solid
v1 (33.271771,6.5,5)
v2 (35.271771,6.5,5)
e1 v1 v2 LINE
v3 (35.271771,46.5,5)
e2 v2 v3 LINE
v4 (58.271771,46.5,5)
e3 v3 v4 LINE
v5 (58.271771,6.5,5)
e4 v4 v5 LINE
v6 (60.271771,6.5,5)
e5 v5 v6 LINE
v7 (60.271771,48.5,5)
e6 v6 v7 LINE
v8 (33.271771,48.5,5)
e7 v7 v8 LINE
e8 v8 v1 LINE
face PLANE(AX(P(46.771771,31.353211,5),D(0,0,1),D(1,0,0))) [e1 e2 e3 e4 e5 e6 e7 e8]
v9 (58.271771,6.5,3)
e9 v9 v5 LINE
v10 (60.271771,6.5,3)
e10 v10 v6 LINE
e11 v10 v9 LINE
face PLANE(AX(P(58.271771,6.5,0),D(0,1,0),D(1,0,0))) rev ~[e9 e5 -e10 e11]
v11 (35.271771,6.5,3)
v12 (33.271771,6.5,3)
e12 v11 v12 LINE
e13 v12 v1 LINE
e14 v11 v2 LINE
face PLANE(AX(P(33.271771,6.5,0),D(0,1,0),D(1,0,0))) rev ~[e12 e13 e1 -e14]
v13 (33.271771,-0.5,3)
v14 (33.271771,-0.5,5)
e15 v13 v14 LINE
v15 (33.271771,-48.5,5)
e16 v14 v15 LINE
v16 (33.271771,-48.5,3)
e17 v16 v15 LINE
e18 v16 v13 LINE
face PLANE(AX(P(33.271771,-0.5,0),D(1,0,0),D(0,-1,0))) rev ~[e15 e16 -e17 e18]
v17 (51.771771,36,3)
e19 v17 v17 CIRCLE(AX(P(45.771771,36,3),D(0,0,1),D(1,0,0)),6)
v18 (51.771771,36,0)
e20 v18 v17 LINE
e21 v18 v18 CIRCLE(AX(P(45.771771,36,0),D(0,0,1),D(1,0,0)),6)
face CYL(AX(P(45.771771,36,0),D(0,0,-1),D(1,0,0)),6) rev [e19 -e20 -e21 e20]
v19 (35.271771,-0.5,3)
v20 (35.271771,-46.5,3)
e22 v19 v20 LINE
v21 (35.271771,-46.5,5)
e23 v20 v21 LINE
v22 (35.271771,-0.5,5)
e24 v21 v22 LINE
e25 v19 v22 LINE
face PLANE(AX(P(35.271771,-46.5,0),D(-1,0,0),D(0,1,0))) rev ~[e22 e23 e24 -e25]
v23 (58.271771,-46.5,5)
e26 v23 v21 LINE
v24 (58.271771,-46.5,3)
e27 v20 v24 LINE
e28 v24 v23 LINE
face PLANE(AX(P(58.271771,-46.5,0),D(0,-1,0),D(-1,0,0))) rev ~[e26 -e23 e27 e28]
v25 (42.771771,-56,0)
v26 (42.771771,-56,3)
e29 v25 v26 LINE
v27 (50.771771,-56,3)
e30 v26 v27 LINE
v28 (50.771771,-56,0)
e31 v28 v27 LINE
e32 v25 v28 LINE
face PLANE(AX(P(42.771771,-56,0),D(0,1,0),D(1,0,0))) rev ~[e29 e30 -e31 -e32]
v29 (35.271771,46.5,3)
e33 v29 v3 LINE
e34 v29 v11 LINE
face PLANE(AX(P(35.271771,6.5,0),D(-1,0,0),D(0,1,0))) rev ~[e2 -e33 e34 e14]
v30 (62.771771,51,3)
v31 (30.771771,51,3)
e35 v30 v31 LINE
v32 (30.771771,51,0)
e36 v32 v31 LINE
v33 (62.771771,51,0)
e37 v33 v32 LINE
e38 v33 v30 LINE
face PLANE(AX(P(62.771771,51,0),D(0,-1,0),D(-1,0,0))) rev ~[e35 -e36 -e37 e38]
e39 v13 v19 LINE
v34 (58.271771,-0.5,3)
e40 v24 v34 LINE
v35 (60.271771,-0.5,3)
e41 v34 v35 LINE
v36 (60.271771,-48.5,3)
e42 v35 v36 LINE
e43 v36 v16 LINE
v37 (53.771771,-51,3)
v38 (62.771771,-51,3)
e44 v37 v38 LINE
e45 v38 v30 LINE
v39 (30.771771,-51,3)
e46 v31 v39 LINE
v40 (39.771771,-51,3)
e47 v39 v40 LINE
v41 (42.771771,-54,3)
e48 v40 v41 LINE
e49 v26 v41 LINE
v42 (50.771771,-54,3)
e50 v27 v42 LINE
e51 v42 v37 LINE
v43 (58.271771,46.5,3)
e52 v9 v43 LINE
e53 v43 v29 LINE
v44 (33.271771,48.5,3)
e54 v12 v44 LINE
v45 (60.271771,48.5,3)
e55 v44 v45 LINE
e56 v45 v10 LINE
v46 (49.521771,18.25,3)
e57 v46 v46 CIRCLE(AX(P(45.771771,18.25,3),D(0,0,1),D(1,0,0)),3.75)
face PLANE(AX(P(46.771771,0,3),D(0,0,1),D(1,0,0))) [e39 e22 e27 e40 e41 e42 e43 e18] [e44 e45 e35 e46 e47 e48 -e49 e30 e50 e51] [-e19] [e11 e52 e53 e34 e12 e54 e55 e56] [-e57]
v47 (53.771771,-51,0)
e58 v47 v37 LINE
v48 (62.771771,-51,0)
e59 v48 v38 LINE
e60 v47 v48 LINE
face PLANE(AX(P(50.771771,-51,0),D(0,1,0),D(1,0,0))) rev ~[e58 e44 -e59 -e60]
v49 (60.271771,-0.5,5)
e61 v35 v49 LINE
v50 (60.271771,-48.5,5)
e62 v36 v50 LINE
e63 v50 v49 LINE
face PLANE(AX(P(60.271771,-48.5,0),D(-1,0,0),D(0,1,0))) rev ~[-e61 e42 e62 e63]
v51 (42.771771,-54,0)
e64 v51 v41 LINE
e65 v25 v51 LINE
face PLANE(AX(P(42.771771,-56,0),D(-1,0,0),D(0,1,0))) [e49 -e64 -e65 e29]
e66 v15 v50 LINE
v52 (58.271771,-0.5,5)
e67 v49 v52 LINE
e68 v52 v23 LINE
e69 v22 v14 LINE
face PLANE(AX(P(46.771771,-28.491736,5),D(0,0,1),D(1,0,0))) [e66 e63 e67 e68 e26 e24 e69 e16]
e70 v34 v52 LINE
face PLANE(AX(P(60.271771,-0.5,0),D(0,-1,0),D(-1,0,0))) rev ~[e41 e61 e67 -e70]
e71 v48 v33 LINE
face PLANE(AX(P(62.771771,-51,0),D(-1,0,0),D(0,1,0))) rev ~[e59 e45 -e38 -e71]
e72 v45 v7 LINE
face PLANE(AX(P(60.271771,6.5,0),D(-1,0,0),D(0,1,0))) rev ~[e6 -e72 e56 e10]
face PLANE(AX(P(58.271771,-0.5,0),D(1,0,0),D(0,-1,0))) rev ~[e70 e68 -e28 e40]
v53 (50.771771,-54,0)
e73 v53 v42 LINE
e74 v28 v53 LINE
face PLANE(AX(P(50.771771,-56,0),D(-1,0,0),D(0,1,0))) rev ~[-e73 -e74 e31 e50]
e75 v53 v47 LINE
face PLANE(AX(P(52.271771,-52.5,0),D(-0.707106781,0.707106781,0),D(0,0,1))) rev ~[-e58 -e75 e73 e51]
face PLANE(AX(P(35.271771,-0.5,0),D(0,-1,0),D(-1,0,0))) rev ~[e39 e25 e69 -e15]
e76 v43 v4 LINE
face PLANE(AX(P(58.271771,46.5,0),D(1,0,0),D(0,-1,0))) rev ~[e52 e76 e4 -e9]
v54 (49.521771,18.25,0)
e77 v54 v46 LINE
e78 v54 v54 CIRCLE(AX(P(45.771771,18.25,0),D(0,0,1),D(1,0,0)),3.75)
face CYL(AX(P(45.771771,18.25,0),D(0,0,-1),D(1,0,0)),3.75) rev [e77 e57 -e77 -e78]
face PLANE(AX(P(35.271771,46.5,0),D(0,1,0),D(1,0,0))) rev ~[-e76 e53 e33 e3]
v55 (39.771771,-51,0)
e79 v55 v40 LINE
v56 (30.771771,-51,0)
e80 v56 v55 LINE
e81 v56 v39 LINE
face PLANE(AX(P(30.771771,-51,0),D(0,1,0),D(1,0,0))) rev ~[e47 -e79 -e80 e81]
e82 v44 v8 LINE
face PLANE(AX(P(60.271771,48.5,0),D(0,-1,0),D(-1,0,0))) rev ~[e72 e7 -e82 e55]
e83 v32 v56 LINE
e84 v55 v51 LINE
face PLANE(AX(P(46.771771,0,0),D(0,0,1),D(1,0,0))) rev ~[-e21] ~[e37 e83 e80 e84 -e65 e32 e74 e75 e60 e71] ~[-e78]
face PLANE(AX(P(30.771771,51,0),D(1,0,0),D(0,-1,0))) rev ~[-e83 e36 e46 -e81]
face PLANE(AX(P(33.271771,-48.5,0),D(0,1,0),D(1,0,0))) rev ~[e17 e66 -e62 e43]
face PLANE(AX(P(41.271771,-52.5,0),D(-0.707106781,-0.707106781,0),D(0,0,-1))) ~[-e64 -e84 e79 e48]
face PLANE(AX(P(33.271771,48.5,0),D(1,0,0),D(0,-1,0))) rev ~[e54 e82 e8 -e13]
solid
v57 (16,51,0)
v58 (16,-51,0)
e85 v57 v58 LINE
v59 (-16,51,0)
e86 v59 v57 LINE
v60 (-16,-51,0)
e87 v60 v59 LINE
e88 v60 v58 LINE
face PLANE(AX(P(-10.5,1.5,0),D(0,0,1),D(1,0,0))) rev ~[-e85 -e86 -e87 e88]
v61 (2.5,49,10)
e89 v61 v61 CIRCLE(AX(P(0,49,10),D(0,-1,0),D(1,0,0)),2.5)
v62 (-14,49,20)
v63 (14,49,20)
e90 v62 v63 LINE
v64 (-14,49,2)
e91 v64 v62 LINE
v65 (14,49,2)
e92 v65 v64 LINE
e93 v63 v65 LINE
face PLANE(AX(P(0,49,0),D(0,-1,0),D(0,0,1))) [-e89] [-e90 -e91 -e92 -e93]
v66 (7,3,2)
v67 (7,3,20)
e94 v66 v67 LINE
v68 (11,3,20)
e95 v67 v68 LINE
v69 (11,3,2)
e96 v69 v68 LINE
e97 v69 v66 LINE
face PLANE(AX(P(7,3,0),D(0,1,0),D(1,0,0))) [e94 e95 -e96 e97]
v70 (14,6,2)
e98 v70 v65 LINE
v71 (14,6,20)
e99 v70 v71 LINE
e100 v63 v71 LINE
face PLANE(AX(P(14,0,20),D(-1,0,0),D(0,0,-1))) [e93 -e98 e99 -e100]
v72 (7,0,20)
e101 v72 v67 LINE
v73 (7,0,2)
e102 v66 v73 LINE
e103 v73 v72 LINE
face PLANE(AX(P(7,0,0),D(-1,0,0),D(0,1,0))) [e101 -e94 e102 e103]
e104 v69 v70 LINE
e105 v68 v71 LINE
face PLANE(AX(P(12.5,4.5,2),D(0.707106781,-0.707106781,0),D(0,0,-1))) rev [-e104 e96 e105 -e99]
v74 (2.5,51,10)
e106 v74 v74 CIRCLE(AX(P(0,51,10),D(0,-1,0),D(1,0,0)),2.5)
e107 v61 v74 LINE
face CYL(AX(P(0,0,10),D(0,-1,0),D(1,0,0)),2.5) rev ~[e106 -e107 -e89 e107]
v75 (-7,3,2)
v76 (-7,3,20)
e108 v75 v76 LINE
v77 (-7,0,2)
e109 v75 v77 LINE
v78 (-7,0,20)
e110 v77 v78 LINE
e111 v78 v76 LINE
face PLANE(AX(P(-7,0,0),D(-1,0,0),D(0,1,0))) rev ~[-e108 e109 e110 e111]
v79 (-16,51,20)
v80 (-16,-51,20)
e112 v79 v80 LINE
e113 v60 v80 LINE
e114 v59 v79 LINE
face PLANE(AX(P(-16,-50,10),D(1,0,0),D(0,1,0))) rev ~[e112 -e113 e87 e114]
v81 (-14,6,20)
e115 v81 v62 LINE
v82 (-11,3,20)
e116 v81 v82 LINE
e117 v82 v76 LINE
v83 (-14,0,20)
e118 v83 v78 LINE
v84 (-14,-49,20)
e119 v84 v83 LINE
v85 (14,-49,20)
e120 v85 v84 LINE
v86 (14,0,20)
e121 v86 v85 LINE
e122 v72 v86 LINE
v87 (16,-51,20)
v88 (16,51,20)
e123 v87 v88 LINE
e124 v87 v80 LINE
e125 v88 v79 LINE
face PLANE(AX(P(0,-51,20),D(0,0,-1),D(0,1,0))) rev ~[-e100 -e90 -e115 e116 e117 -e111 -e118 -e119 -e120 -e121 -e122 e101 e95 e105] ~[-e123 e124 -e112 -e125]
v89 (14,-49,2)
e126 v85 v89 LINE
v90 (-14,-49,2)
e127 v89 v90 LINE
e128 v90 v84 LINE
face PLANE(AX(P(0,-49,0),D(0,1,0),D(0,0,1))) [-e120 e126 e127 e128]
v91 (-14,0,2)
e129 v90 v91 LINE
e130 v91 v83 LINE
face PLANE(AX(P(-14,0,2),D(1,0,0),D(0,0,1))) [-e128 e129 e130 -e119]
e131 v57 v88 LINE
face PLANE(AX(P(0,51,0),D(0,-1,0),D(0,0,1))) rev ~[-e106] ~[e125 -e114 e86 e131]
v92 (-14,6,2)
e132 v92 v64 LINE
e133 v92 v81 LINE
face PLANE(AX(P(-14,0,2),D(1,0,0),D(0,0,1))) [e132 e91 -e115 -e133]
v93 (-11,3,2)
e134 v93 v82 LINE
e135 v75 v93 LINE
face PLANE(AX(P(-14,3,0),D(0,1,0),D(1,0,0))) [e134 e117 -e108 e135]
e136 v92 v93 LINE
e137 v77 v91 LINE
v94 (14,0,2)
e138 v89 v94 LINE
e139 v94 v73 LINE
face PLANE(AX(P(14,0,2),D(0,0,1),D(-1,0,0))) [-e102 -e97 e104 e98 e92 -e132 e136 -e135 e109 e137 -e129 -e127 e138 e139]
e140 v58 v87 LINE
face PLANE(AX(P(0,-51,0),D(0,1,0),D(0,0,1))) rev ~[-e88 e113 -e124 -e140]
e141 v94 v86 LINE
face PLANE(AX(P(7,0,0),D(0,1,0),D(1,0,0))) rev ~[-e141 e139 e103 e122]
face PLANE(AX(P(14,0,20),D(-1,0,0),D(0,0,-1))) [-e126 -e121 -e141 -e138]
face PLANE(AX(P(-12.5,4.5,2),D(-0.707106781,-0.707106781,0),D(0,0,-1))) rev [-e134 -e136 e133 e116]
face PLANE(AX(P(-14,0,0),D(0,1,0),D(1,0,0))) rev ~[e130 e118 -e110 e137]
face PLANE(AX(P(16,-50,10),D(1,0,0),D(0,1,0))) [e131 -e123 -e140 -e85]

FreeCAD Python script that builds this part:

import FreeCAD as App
import Part
import Sketcher
from FreeCAD import Vector


def edges_at(feature, points):
    """Names of the edges that pass closest to the given points."""
    edges = feature.Shape.Edges
    near = lambda p: min(range(len(edges)), key=lambda i: edges[i].distToShape(Part.Vertex(*p))[0])
    return sorted({f"Edge{near(p) + 1}" for p in points})


def add_polygon(sketch, points):
    """Adds a closed chain of lines whose ends are joined by coincident constraints."""
    first, n = sketch.GeometryCount, len(points)
    for a, b in zip(points, points[1:] + points[:1]):
        sketch.addGeometry(Part.LineSegment(App.Vector(*a, 0), App.Vector(*b, 0)), False)
    for i in range(n):
        sketch.addConstraint(Sketcher.Constraint("Coincident", first + i, 2, first + (i + 1) % n, 1))

doc = App.newDocument("Part")
body = doc.addObject("PartDesign::Body", "Body")

# Sketch on XZ plane
sketch1 = body.newObject("Sketcher::SketchObject", "Sketch")
sketch1.AttachmentSupport = (doc.getObject("XZ_Plane"), [""])
sketch1.MapMode = "FlatFace"
add_polygon(sketch1, [(-14, 20), (-16, 20), (-16, 0), (16, 0), (16, 20), (14, 20), (14, 2), (-14, 2)])  # lines 0-7
sketch1.addConstraint(Sketcher.Constraint("Horizontal", 0))
sketch1.addConstraint(Sketcher.Constraint("Vertical", 1))
sketch1.addConstraint(Sketcher.Constraint("Horizontal", 2))
sketch1.addConstraint(Sketcher.Constraint("Vertical", 3))
sketch1.addConstraint(Sketcher.Constraint("Horizontal", 4))
sketch1.addConstraint(Sketcher.Constraint("Vertical", 5))
sketch1.addConstraint(Sketcher.Constraint("Horizontal", 6))
sketch1.addConstraint(Sketcher.Constraint("Vertical", 7))
sketch1.addConstraint(Sketcher.Constraint("Symmetric", 1, 2, 2, 2, -1, 1))
sketch1.addConstraint(Sketcher.Constraint("Symmetric", 4, 2, 7, 2, -2))
sketch1.addConstraint(Sketcher.Constraint("DistanceX", 0, 2, 0, 1, 2.0))
sketch1.addConstraint(Sketcher.Constraint("DistanceX", 2, 1, 2, 2, 32.0))
sketch1.addConstraint(Sketcher.Constraint("DistanceY", 1, 2, 1, 1, 20.0))
sketch1.addConstraint(Sketcher.Constraint("DistanceY", 5, 2, 5, 1, 18.0))
pad1 = body.newObject("PartDesign::Pad", "Pad")
pad1.Profile = sketch1
pad1.Type = "TwoLengths"
pad1.Length = 49
pad1.Length2 = 49

# Sketch on YZ plane
sketch2 = body.newObject("Sketcher::SketchObject", "Sketch001")
sketch2.AttachmentSupport = (doc.getObject("YZ_Plane"), [""])
sketch2.MapMode = "FlatFace"
add_polygon(sketch2, [(-51, 20), (-51, 0), (-49, 0), (-49, 20)])  # lines 0-3
add_polygon(sketch2, [(49, 20), (49, 0), (51, 0), (51, 20)])  # lines 4-7
sketch2.addConstraint(Sketcher.Constraint("Vertical", 0))
sketch2.addConstraint(Sketcher.Constraint("Horizontal", 1))
sketch2.addConstraint(Sketcher.Constraint("Vertical", 2))
sketch2.addConstraint(Sketcher.Constraint("Horizontal", 3))
sketch2.addConstraint(Sketcher.Constraint("Vertical", 4))
sketch2.addConstraint(Sketcher.Constraint("Horizontal", 5))
sketch2.addConstraint(Sketcher.Constraint("Vertical", 6))
sketch2.addConstraint(Sketcher.Constraint("Horizontal", 7))
sketch2.addConstraint(Sketcher.Constraint("Symmetric", 1, 2, 4, 2, -1, 1))
sketch2.addConstraint(Sketcher.Constraint("Symmetric", 0, 2, 5, 2, -2))
sketch2.addConstraint(Sketcher.Constraint("Horizontal", 3, 2, 6, 2))
sketch2.addConstraint(Sketcher.Constraint("DistanceX", 1, 1, 1, 2, 2.0))
sketch2.addConstraint(Sketcher.Constraint("DistanceY", 0, 2, 0, 1, 20.0))
sketch2.addConstraint(Sketcher.Constraint("DistanceX", 0, 2, -1, 1, 51.0))
pad2 = body.newObject("PartDesign::Pad", "Pad001")
pad2.Profile = sketch2
pad2.Type = "TwoLengths"
pad2.Length = 16
pad2.Length2 = 16

# Sketch on XY plane
sketch3 = body.newObject("Sketcher::SketchObject", "Sketch002")
sketch3.AttachmentSupport = (doc.getObject("XY_Plane"), [""])
sketch3.MapMode = "FlatFace"
add_polygon(sketch3, [(-14, 3), (-14, 0), (-7, 0), (-7, 3)])  # lines 0-3
add_polygon(sketch3, [(7, 3), (7, 0), (14, 0), (14, 3)])  # lines 4-7
sketch3.addConstraint(Sketcher.Constraint("Vertical", 0))
sketch3.addConstraint(Sketcher.Constraint("Horizontal", 1))
sketch3.addConstraint(Sketcher.Constraint("Vertical", 2))
sketch3.addConstraint(Sketcher.Constraint("Horizontal", 3))
sketch3.addConstraint(Sketcher.Constraint("Vertical", 4))
sketch3.addConstraint(Sketcher.Constraint("Horizontal", 5))
sketch3.addConstraint(Sketcher.Constraint("Vertical", 6))
sketch3.addConstraint(Sketcher.Constraint("Horizontal", 7))
sketch3.addConstraint(Sketcher.Constraint("Symmetric", 1, 2, 4, 2, -1, 1))
sketch3.addConstraint(Sketcher.Constraint("Symmetric", 0, 2, 5, 2, -2))
sketch3.addConstraint(Sketcher.Constraint("Horizontal", 3, 2, 6, 2))
sketch3.addConstraint(Sketcher.Constraint("DistanceX", 1, 1, 1, 2, 7.0))
sketch3.addConstraint(Sketcher.Constraint("DistanceY", 0, 2, 0, 1, 3.0))
sketch3.addConstraint(Sketcher.Constraint("DistanceX", 0, 2, -1, 1, 14.0))
pad3 = body.newObject("PartDesign::Pad", "Pad002")
pad3.Profile = sketch3
pad3.Length = 20

# Sketch on XZ plane
sketch4 = body.newObject("Sketcher::SketchObject", "Sketch003")
sketch4.AttachmentSupport = (doc.getObject("XZ_Plane"), [""])
sketch4.MapMode = "FlatFace"
sketch4.addGeometry(Part.Circle(Vector(0, 10, 0), Vector(0, 0, 1), 2.5), False)
sketch4.addConstraint(Sketcher.Constraint("PointOnObject", 0, 3, -2))
sketch4.addConstraint(Sketcher.Constraint("Diameter", 0, 5.0))
sketch4.addConstraint(Sketcher.Constraint("DistanceY", -1, 1, 0, 3, 10.0))
pocket1 = body.newObject("PartDesign::Pocket", "Pocket")
pocket1.Profile = sketch4
pocket1.Type = "ThroughAll"
doc.recompute()

chamfer = body.newObject("PartDesign::Chamfer", "Chamfer")
chamfer.Base = (pocket1, edges_at(pocket1, [(-14, 3, 11), (14, 3, 11)]))
chamfer.Size = 3
body2 = doc.addObject("PartDesign::Body", "Body001")

# Sketch on XY plane
sketch5 = body2.newObject("Sketcher::SketchObject", "Sketch004")
sketch5.AttachmentSupport = (doc.getObject("XY_Plane001"), [""])
sketch5.MapMode = "FlatFace"
add_polygon(sketch5, [(62.8, 51), (30.8, 51), (30.8, -51), (42.8, -51), (42.8, -56), (50.8, -56), (50.8, -51), (62.8, -51)])  # lines 0-7
add_polygon(sketch5, [(60.3, -0.5), (60.3, -48.5), (33.3, -48.5), (33.3, -0.5), (35.3, -0.5), (35.3, -46.5), (58.3, -46.5), (58.3, -0.5)])  # lines 8-15
sketch5.addGeometry(Part.Circle(Vector(45.8, 18.2, 0), Vector(0, 0, 1), 3.8), False)  # 16
sketch5.addGeometry(Part.Circle(Vector(45.8, 36, 0), Vector(0, 0, 1), 6), False)  # 17
add_polygon(sketch5, [(35.3, 6.5), (33.3, 6.5), (33.3, 48.5), (60.3, 48.5), (60.3, 6.5), (58.3, 6.5), (58.3, 46.5), (35.3, 46.5)])  # lines 18-25
sketch5.addConstraint(Sketcher.Constraint("Horizontal", 0))
sketch5.addConstraint(Sketcher.Constraint("Vertical", 1))
sketch5.addConstraint(Sketcher.Constraint("Horizontal", 2))
sketch5.addConstraint(Sketcher.Constraint("Vertical", 3))
sketch5.addConstraint(Sketcher.Constraint("Horizontal", 4))
sketch5.addConstraint(Sketcher.Constraint("Vertical", 5))
sketch5.addConstraint(Sketcher.Constraint("Horizontal", 6))
sketch5.addConstraint(Sketcher.Constraint("Vertical", 7))
sketch5.addConstraint(Sketcher.Constraint("Vertical", 8))
sketch5.addConstraint(Sketcher.Constraint("Horizontal", 9))
sketch5.addConstraint(Sketcher.Constraint("Vertical", 10))
sketch5.addConstraint(Sketcher.Constraint("Horizontal", 11))
sketch5.addConstraint(Sketcher.Constraint("Vertical", 12))
sketch5.addConstraint(Sketcher.Constraint("Horizontal", 13))
sketch5.addConstraint(Sketcher.Constraint("Vertical", 14))
sketch5.addConstraint(Sketcher.Constraint("Horizontal", 15))
sketch5.addConstraint(Sketcher.Constraint("Horizontal", 18))
sketch5.addConstraint(Sketcher.Constraint("Vertical", 19))
sketch5.addConstraint(Sketcher.Constraint("Horizontal", 20))
sketch5.addConstraint(Sketcher.Constraint("Vertical", 21))
sketch5.addConstraint(Sketcher.Constraint("Horizontal", 22))
sketch5.addConstraint(Sketcher.Constraint("Vertical", 23))
sketch5.addConstraint(Sketcher.Constraint("Horizontal", 24))
sketch5.addConstraint(Sketcher.Constraint("Vertical", 25))
sketch5.addConstraint(Sketcher.Constraint("Symmetric", 9, 2, 19, 2, -1))
sketch5.addConstraint(Sketcher.Constraint("Symmetric", 13, 2, 23, 2, -1))
sketch5.addConstraint(Sketcher.Constraint("Horizontal", 2, 2, 5, 2))
sketch5.addConstraint(Sketcher.Constraint("Horizontal", 11, 2, 14, 2))
sketch5.addConstraint(Sketcher.Constraint("Horizontal", 18, 2, 21, 2))
sketch5.addConstraint(Sketcher.Constraint("Vertical", 16, 3, 17, 3))
sketch5.addConstraint(Sketcher.Constraint("Vertical", 15, 2, 20, 2))
sketch5.addConstraint(Sketcher.Constraint("Vertical", 12, 2, 24, 2))
sketch5.addConstraint(Sketcher.Constraint("Equal", 2, 6))
sketch5.addConstraint(Sketcher.Constraint("Equal", 11, 15))
sketch5.addConstraint(Sketcher.Constraint("Diameter", 17, 12.0))
sketch5.addConstraint(Sketcher.Constraint("Diameter", 16, 7.5))
sketch5.addConstraint(Sketcher.Constraint("DistanceX", 0, 2, 0, 1, 32.0))
sketch5.addConstraint(Sketcher.Constraint("DistanceX", 2, 1, 2, 2, 12.0))
sketch5.addConstraint(Sketcher.Constraint("DistanceX", 9, 2, 9, 1, 27.0))
sketch5.addConstraint(Sketcher.Constraint("DistanceX", 11, 1, 11, 2, 2.0))
sketch5.addConstraint(Sketcher.Constraint("DistanceY", 1, 2, 1, 1, 102.0))
sketch5.addConstraint(Sketcher.Constraint("DistanceY", 3, 2, 3, 1, 5.0))
sketch5.addConstraint(Sketcher.Constraint("DistanceY", 8, 2, 8, 1, 48.0))
sketch5.addConstraint(Sketcher.Constraint("DistanceY", 12, 2, 12, 1, 46.0))
sketch5.addConstraint(Sketcher.Constraint("DistanceY", 19, 1, 19, 2, 42.0))
sketch5.addConstraint(Sketcher.Constraint("DistanceY", -1, 1, 17, 3, 36.0))
sketch5.addConstraint(Sketcher.Constraint("DistanceY", -1, 1, 0, 2, 51.0))
sketch5.addConstraint(Sketcher.Constraint("DistanceX", 0, 2, 17, 3, 15.0))
sketch5.addConstraint(Sketcher.Constraint("DistanceY", 10, 2, 18, 2, 7.0))
sketch5.addConstraint(Sketcher.Constraint("DistanceX", 8, 2, 6, 2, 2.5))
sketch5.addConstraint(Sketcher.Constraint("DistanceY", -1, 1, 16, 3, 18.25))
sketch5.addConstraint(Sketcher.Constraint("DistanceX", -1, 1, 16, 3, 45.771771))
pad4 = body2.newObject("PartDesign::Pad", "Pad003")
pad4.Profile = sketch5
pad4.Length = 3

# Sketch on XY plane
sketch6 = body2.newObject("Sketcher::SketchObject", "Sketch005")
sketch6.AttachmentSupport = (doc.getObject("XY_Plane001"), [""])
sketch6.MapMode = "FlatFace"
add_polygon(sketch6, [(60.3, 48.5), (33.3, 48.5), (33.3, 6.5), (35.3, 6.5), (35.3, 46.5), (58.3, 46.5), (58.3, 6.5), (60.3, 6.5)])  # lines 0-7
add_polygon(sketch6, [(33.3, -0.5), (33.3, -48.5), (60.3, -48.5), (60.3, -0.5), (58.3, -0.5), (58.3, -46.5), (35.3, -46.5), (35.3, -0.5)])  # lines 8-15
sketch6.addConstraint(Sketcher.Constraint("Horizontal", 0))
sketch6.addConstraint(Sketcher.Constraint("Vertical", 1))
sketch6.addConstraint(Sketcher.Constraint("Horizontal", 2))
sketch6.addConstraint(Sketcher.Constraint("Vertical", 3))
sketch6.addConstraint(Sketcher.Constraint("Horizontal", 4))
sketch6.addConstraint(Sketcher.Constraint("Vertical", 5))
sketch6.addConstraint(Sketcher.Constraint("Horizontal", 6))
sketch6.addConstraint(Sketcher.Constraint("Vertical", 7))
sketch6.addConstraint(Sketcher.Constraint("Vertical", 8))
sketch6.addConstraint(Sketcher.Constraint("Horizontal", 9))
sketch6.addConstraint(Sketcher.Constraint("Vertical", 10))
sketch6.addConstraint(Sketcher.Constraint("Horizontal", 11))
sketch6.addConstraint(Sketcher.Constraint("Vertical", 12))
sketch6.addConstraint(Sketcher.Constraint("Horizontal", 13))
sketch6.addConstraint(Sketcher.Constraint("Vertical", 14))
sketch6.addConstraint(Sketcher.Constraint("Horizontal", 15))
sketch6.addConstraint(Sketcher.Constraint("Symmetric", 0, 2, 8, 2, -1))
sketch6.addConstraint(Sketcher.Constraint("Symmetric", 4, 2, 12, 2, -1))
sketch6.addConstraint(Sketcher.Constraint("Horizontal", 2, 2, 5, 2))
sketch6.addConstraint(Sketcher.Constraint("Horizontal", 11, 2, 14, 2))
sketch6.addConstraint(Sketcher.Constraint("Vertical", 7, 2, 9, 2))
sketch6.addConstraint(Sketcher.Constraint("Vertical", 3, 2, 13, 2))
sketch6.addConstraint(Sketcher.Constraint("Equal", 2, 6))
sketch6.addConstraint(Sketcher.Constraint("DistanceX", 0, 2, 0, 1, 27.0))
sketch6.addConstraint(Sketcher.Constraint("DistanceX", 2, 1, 2, 2, 2.0))
sketch6.addConstraint(Sketcher.Constraint("DistanceY", 1, 2, 1, 1, 42.0))
sketch6.addConstraint(Sketcher.Constraint("DistanceY", 3, 1, 3, 2, 40.0))
sketch6.addConstraint(Sketcher.Constraint("DistanceY", 8, 2, 8, 1, 48.0))
sketch6.addConstraint(Sketcher.Constraint("DistanceY", 8, 2, 1, 2, 55.0))
sketch6.addConstraint(Sketcher.Constraint("DistanceX", -1, 1, 0, 2, 33.271771))
pad5 = body2.newObject("PartDesign::Pad", "Pad004")
pad5.Profile = sketch6
pad5.Length = 5
doc.recompute()

chamfer2 = body2.newObject("PartDesign::Chamfer", "Chamfer001")
chamfer2.Base = (pad5, edges_at(pad5, [(50.772, -51, 1.5), (42.772, -51, 1.5)]))
chamfer2.Size = 3

doc.recompute()
